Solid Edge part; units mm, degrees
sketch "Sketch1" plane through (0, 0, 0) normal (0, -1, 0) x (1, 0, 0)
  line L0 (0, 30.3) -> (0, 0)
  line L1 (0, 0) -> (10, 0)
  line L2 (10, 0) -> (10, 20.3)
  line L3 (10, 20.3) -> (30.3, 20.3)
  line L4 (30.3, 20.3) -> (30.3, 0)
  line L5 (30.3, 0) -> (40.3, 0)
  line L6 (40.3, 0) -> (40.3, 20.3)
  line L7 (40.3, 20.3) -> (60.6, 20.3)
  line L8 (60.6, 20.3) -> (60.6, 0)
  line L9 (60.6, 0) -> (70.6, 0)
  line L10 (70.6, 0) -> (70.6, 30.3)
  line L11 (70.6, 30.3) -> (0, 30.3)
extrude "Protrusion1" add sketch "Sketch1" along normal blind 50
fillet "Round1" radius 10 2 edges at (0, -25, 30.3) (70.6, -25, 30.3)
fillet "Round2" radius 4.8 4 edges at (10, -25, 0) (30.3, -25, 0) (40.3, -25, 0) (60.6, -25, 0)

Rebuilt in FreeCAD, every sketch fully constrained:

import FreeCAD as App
import Part
import Sketcher
from FreeCAD import Vector
Q = App.Units.Quantity


def edges_at(feature, points):
    """Names of the edges that pass closest to the given points."""
    edges = feature.Shape.Edges
    near = lambda p: min(range(len(edges)), key=lambda i: edges[i].distToShape(Part.Vertex(*p))[0])
    return sorted({f"Edge{near(p) + 1}" for p in points})

doc = App.newDocument("Part")
body = doc.addObject("PartDesign::Body", "Body")

# Sketch on XZ plane
sketch1 = body.newObject("Sketcher::SketchObject", "Sketch")
sketch1.AttachmentSupport = (doc.getObject("XZ_Plane"), [""])
sketch1.MapMode = "FlatFace"
sketch1.addGeometry([
    Part.LineSegment(Vector(70.6, 30.3, 0), Vector(0, 30.3, 0)),  # 0
    Part.LineSegment(Vector(0, 30.3, 0), Vector(0, 0, 0)),  # 1
    Part.LineSegment(Vector(0, 0, 0), Vector(10, 0, 0)),  # 2
    Part.LineSegment(Vector(10, 0, 0), Vector(10, 20.3, 0)),  # 3
    Part.LineSegment(Vector(10, 20.3, 0), Vector(30.3, 20.3, 0)),  # 4
    Part.LineSegment(Vector(30.3, 20.3, 0), Vector(30.3, 0, 0)),  # 5
    Part.LineSegment(Vector(30.3, 0, 0), Vector(40.3, 0, 0)),  # 6
    Part.LineSegment(Vector(40.3, 0, 0), Vector(40.3, 20.3, 0)),  # 7
    Part.LineSegment(Vector(40.3, 20.3, 0), Vector(60.6, 20.3, 0)),  # 8
    Part.LineSegment(Vector(60.6, 20.3, 0), Vector(60.6, 0, 0)),  # 9
    Part.LineSegment(Vector(60.6, 0, 0), Vector(70.6, 0, 0)),  # 10
    Part.LineSegment(Vector(70.6, 0, 0), Vector(70.6, 30.3, 0)),  # 11
], False)
sketch1.addConstraint([
    Sketcher.Constraint("Coincident", 0, 2, 1, 1),
    Sketcher.Constraint("Coincident", 1, 2, 2, 1),
    Sketcher.Constraint("Coincident", 2, 2, 3, 1),
    Sketcher.Constraint("Coincident", 3, 2, 4, 1),
    Sketcher.Constraint("Coincident", 4, 2, 5, 1),
    Sketcher.Constraint("Coincident", 5, 2, 6, 1),
    Sketcher.Constraint("Coincident", 6, 2, 7, 1),
    Sketcher.Constraint("Coincident", 7, 2, 8, 1),
    Sketcher.Constraint("Coincident", 8, 2, 9, 1),
    Sketcher.Constraint("Coincident", 9, 2, 10, 1),
    Sketcher.Constraint("Coincident", 10, 2, 11, 1),
    Sketcher.Constraint("Coincident", 11, 2, 0, 1),
    Sketcher.Constraint("Horizontal", 0),
    Sketcher.Constraint("Vertical", 1),
    Sketcher.Constraint("Horizontal", 2),
    Sketcher.Constraint("Vertical", 3),
    Sketcher.Constraint("Horizontal", 4),
    Sketcher.Constraint("Vertical", 5),
    Sketcher.Constraint("Horizontal", 6),
    Sketcher.Constraint("Vertical", 7),
    Sketcher.Constraint("Horizontal", 8),
    Sketcher.Constraint("Vertical", 9),
    Sketcher.Constraint("Horizontal", 10),
    Sketcher.Constraint("Vertical", 11),
    Sketcher.Constraint("Coincident", 1, 2, -1, 1),
    Sketcher.Constraint("PointOnObject", 5, 2, -1),
    Sketcher.Constraint("PointOnObject", 9, 2, -1),
    Sketcher.Constraint("Horizontal", 4, 2, 7, 2),
    Sketcher.Constraint("Equal", 2, 6),
    Sketcher.Constraint("Equal", 4, 8),
    Sketcher.Constraint("Equal", 6, 10),
    Sketcher.Constraint("Equal", 8, 3),
    Sketcher.Constraint("DistanceX", 2, 1, 2, 2, Q("10 mm")),
    Sketcher.Constraint("DistanceX", 0, 2, 0, 1, Q("70.6 mm")),
    Sketcher.Constraint("DistanceY", 1, 2, 1, 1, Q("30.3 mm")),
])
pad1 = body.newObject("PartDesign::Pad", "Pad")
pad1.Profile = sketch1
pad1.Length = 50
doc.recompute()

fillet = body.newObject("PartDesign::Fillet", "Fillet")
fillet.Base = (pad1, edges_at(pad1, [(0, -25, 30.3), (70.6, -25, 30.3)]))
fillet.Radius = 10
doc.recompute()

fillet2 = body.newObject("PartDesign::Fillet", "Fillet001")
fillet2.Base = (fillet, edges_at(fillet, [
    (10, -25, 0),
    (30.3, -25, 0),
    (40.3, -25, 0),
    (60.6, -25, 0),
]))
fillet2.Radius = 4.8

doc.recompute()
